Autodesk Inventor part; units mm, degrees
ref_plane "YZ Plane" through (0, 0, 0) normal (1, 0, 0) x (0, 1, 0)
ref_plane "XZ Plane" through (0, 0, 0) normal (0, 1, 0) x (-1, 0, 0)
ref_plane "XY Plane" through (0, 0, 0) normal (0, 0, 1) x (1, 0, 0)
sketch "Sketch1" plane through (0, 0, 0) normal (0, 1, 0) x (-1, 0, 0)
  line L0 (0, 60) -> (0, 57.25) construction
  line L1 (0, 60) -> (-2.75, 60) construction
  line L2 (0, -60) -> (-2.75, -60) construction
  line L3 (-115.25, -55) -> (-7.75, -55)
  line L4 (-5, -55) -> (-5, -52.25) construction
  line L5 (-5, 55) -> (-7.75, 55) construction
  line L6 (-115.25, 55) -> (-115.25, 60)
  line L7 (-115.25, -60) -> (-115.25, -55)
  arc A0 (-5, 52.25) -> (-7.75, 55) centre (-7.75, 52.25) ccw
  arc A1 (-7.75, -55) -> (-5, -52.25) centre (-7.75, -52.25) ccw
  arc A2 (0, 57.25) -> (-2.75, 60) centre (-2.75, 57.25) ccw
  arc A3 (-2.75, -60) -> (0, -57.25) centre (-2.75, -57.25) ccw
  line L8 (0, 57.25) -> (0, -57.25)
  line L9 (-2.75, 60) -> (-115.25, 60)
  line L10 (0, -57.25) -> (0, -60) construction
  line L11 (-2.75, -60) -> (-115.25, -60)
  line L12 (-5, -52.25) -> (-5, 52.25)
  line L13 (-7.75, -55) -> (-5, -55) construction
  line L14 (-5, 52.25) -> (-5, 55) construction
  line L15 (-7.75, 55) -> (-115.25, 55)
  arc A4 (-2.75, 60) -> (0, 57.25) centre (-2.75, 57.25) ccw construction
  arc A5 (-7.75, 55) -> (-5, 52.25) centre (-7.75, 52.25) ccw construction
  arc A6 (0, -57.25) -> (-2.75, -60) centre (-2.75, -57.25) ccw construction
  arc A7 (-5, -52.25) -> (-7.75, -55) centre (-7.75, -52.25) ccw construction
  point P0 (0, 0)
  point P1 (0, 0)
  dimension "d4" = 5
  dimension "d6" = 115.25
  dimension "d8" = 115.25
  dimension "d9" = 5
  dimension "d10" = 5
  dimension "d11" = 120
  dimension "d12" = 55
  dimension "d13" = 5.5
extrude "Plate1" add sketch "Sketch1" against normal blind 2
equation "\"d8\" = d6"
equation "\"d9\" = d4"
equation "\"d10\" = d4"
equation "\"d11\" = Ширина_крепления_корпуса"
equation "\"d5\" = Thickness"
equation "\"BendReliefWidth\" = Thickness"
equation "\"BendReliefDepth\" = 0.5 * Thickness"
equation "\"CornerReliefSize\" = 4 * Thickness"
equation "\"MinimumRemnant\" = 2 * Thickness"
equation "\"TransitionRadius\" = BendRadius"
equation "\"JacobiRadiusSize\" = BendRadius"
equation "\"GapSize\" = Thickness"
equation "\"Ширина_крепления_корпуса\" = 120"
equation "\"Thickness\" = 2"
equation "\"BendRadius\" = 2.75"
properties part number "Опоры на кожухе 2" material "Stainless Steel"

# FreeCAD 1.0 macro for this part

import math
import FreeCAD as App
import Part
import Sketcher

V = App.Vector

doc = App.newDocument("Part")
body = doc.addObject("PartDesign::Body", "Body")

# Sketch on XZ plane
sketch1 = body.newObject("Sketcher::SketchObject", "Sketch")
sketch1.AttachmentSupport = (doc.getObject("XZ_Plane"), [""])
sketch1.MapMode = "FlatFace"
sketch1.addGeometry(Part.LineSegment(V(7.8, -55, 0), V(115.2, -55, 0)), False)
sketch1.addGeometry(Part.LineSegment(V(115.2, -55, 0), V(115.2, -60, 0)), False)
sketch1.addGeometry(Part.LineSegment(V(115.2, -60, 0), V(2.8, -60, 0)), False)
sketch1.addGeometry(Part.ArcOfCircle(Part.Circle(V(2.8, -57.2, 0), V(0, 0, 1), 2.8), math.radians(180), math.radians(270)), False)
sketch1.addGeometry(Part.LineSegment(V(0, -57.2, 0), V(0, 57.2, 0)), False)
sketch1.addGeometry(Part.ArcOfCircle(Part.Circle(V(2.8, 57.2, 0), V(0, 0, 1), 2.8), math.radians(90), math.radians(180)), False)
sketch1.addGeometry(Part.LineSegment(V(2.8, 60, 0), V(115.2, 60, 0)), False)
sketch1.addGeometry(Part.LineSegment(V(115.2, 60, 0), V(115.2, 55, 0)), False)
sketch1.addGeometry(Part.LineSegment(V(115.2, 55, 0), V(7.8, 55, 0)), False)
sketch1.addGeometry(Part.ArcOfCircle(Part.Circle(V(7.8, 52.2, 0), V(0, 0, 1), 2.8), math.radians(90), math.radians(180)), False)
sketch1.addGeometry(Part.LineSegment(V(5, 52.2, 0), V(5, -52.2, 0)), False)
sketch1.addGeometry(Part.ArcOfCircle(Part.Circle(V(7.8, -52.2, 0), V(0, 0, 1), 2.8), math.radians(180), math.radians(270)), False)
sketch1.addConstraint(Sketcher.Constraint("Coincident", 0, 2, 1, 1))
sketch1.addConstraint(Sketcher.Constraint("Coincident", 1, 2, 2, 1))
sketch1.addConstraint(Sketcher.Constraint("Tangent", 2, 2, 3, 2))
sketch1.addConstraint(Sketcher.Constraint("Tangent", 3, 1, 4, 1))
sketch1.addConstraint(Sketcher.Constraint("Tangent", 4, 2, 5, 2))
sketch1.addConstraint(Sketcher.Constraint("Tangent", 5, 1, 6, 1))
sketch1.addConstraint(Sketcher.Constraint("Coincident", 6, 2, 7, 1))
sketch1.addConstraint(Sketcher.Constraint("Coincident", 7, 2, 8, 1))
sketch1.addConstraint(Sketcher.Constraint("Tangent", 8, 2, 9, 1))
sketch1.addConstraint(Sketcher.Constraint("Tangent", 9, 2, 10, 1))
sketch1.addConstraint(Sketcher.Constraint("Tangent", 10, 2, 11, 1))
sketch1.addConstraint(Sketcher.Constraint("Tangent", 11, 2, 0, 1))
sketch1.addConstraint(Sketcher.Constraint("Horizontal", 0))
sketch1.addConstraint(Sketcher.Constraint("Vertical", 1))
sketch1.addConstraint(Sketcher.Constraint("Horizontal", 2))
sketch1.addConstraint(Sketcher.Constraint("Vertical", 4))
sketch1.addConstraint(Sketcher.Constraint("Horizontal", 6))
sketch1.addConstraint(Sketcher.Constraint("Vertical", 7))
sketch1.addConstraint(Sketcher.Constraint("Horizontal", 8))
sketch1.addConstraint(Sketcher.Constraint("Vertical", 10))
sketch1.addConstraint(Sketcher.Constraint("Equal", 3, 5))
sketch1.addConstraint(Sketcher.Constraint("Equal", 5, 9))
sketch1.addConstraint(Sketcher.Constraint("Equal", 9, 11))
sketch1.addConstraint(Sketcher.Constraint("Symmetric", 3, 1, 4, 2, -1, 1))
sketch1.addConstraint(Sketcher.Constraint("Symmetric", 0, 2, 7, 2, -1))
sketch1.addConstraint(Sketcher.Constraint("DistanceY", 1, 2, 1, 1, 5.0))
sketch1.addConstraint(Sketcher.Constraint("Radius", 3, 2.75))
sketch1.addConstraint(Sketcher.Constraint("DistanceY", 0, 2, -1, 1, 55.0))
sketch1.addConstraint(Sketcher.Constraint("DistanceX", -1, 1, 9, 2, 5.0))
sketch1.addConstraint(Sketcher.Constraint("DistanceX", -1, 1, 0, 2, 115.25))
pad1 = body.newObject("PartDesign::Pad", "Pad")
pad1.Profile = sketch1
pad1.Length = 2

doc.recompute()
